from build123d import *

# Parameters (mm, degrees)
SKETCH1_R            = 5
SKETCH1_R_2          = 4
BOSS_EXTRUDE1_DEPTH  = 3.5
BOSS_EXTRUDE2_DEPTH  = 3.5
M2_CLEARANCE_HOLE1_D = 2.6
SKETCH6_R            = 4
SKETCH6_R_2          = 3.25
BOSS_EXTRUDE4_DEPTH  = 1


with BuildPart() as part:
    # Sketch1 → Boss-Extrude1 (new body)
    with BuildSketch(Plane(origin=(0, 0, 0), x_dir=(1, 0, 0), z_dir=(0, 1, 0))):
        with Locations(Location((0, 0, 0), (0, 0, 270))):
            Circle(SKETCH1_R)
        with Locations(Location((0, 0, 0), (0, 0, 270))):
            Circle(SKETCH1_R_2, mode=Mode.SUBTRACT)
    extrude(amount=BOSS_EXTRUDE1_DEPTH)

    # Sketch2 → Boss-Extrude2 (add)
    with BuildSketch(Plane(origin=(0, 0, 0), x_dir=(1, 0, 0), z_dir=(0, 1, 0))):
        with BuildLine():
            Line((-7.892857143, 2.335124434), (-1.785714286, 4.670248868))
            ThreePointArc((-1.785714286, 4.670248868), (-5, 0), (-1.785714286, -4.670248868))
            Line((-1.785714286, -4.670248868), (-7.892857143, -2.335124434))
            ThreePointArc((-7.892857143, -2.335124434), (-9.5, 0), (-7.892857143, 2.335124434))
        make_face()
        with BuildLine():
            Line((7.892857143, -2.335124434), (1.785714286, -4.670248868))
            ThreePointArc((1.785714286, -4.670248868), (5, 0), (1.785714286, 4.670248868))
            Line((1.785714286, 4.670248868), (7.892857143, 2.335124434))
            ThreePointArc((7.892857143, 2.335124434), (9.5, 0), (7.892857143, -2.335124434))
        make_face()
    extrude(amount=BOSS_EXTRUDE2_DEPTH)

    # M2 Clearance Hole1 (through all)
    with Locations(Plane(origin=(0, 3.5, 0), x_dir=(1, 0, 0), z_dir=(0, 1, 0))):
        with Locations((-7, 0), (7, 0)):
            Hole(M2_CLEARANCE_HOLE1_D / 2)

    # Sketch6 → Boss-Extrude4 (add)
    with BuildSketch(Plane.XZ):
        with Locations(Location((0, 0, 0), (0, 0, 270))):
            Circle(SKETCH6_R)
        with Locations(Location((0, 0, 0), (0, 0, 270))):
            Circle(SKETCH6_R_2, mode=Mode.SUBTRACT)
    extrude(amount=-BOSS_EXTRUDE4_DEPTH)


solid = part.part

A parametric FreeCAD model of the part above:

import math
import FreeCAD as App
import Part
import Sketcher
from FreeCAD import Vector

doc = App.newDocument("Part")
body = doc.addObject("PartDesign::Body", "Body")

# Sketch on XZ plane
sketch1 = body.newObject("Sketcher::SketchObject", "Sketch")
sketch1.AttachmentSupport = (doc.getObject("XZ_Plane"), [""])
sketch1.MapMode = "FlatFace"
sketch1.addGeometry([
    Part.Circle(Vector(0, 0, 0), Vector(0, 0, 1), 5),
    Part.Circle(Vector(0, 0, 0), Vector(0, 0, 1), 4),
], False)
sketch1.addConstraint([
    Sketcher.Constraint("Coincident", 0, 3, -1, 1),
    Sketcher.Constraint("Coincident", 1, 3, -1, 1),
    Sketcher.Constraint("Diameter", 0, 10.0),
    Sketcher.Constraint("Diameter", 1, 8.0),
])
pad1 = body.newObject("PartDesign::Pad", "Pad")
pad1.Profile = sketch1
pad1.Length = 3.5
pad1.Reversed = True

# Sketch on XZ plane
sketch2 = body.newObject("Sketcher::SketchObject", "Sketch001")
sketch2.AttachmentSupport = (doc.getObject("XZ_Plane"), [""])
sketch2.MapMode = "FlatFace"
sketch2.addGeometry([
    Part.LineSegment(Vector(-1.785714, -4.670249, 0), Vector(-7.892857, -2.335124, 0)),  # 0
    Part.ArcOfCircle(Part.Circle(Vector(-7, 0, 0), Vector(0, 0, 1), 2.5), math.radians(110.924832), math.radians(249.075168)),  # 1
    Part.LineSegment(Vector(-7.892857, 2.335124, 0), Vector(-1.785714, 4.670249, 0)),  # 2
    Part.ArcOfCircle(Part.Circle(Vector(0, 0, 0), Vector(0, 0, 1), 5), math.radians(110.924832), math.radians(249.075168)),  # 3
    Part.LineSegment(Vector(1.785714, 4.670249, 0), Vector(7.892857, 2.335124, 0)),  # 4
    Part.ArcOfCircle(Part.Circle(Vector(7, 0, 0), Vector(0, 0, 1), 2.5), math.radians(-69.075168), math.radians(69.075168)),  # 5
    Part.LineSegment(Vector(7.892857, -2.335124, 0), Vector(1.785714, -4.670249, 0)),  # 6
    Part.ArcOfCircle(Part.Circle(Vector(0, 0, 0), Vector(0, 0, 1), 5), math.radians(-69.075168), math.radians(69.075168)),  # 7
], False)
sketch2.addConstraint([
    Sketcher.Constraint("Tangent", 0, 2, 1, 2),
    Sketcher.Constraint("Tangent", 1, 1, 2, 1),
    Sketcher.Constraint("Tangent", 2, 2, 3, 1),
    Sketcher.Constraint("Tangent", 3, 2, 0, 1),
    Sketcher.Constraint("Tangent", 4, 2, 5, 2),
    Sketcher.Constraint("Tangent", 5, 1, 6, 1),
    Sketcher.Constraint("Tangent", 6, 2, 7, 1),
    Sketcher.Constraint("Tangent", 7, 2, 4, 1),
    Sketcher.Constraint("Coincident", 3, 3, -1, 1),
    Sketcher.Constraint("Coincident", 7, 3, -1, 1),
    Sketcher.Constraint("Equal", 1, 5),
    Sketcher.Constraint("Equal", 3, 7),
    Sketcher.Constraint("Symmetric", 1, 3, 5, 3, -1, 1),
    Sketcher.Constraint("PointOnObject", 1, 3, -1),
    Sketcher.Constraint("Radius", 3, 5.0),
    Sketcher.Constraint("Radius", 1, 2.5),
    Sketcher.Constraint("DistanceX", 1, 3, -1, 1, 7.0),
])
pad2 = body.newObject("PartDesign::Pad", "Pad001")
pad2.Profile = sketch2
pad2.Length = 3.5
pad2.Reversed = True

# Sketch on XZ plane
sketch3 = body.newObject("Sketcher::SketchObject", "Sketch002")
sketch3.AttachmentSupport = (doc.getObject("XZ_Plane"), [""])
sketch3.MapMode = "FlatFace"
sketch3.AttachmentOffset = App.Placement(Vector(0, 0, -3.5), App.Rotation())
sketch3.addGeometry([
    Part.Circle(Vector(-7, 0, 0), Vector(0, 0, 1), 1.3),
    Part.Circle(Vector(7, 0, 0), Vector(0, 0, 1), 1.3),
], False)
sketch3.addConstraint([
    Sketcher.Constraint("Equal", 0, 1),
    Sketcher.Constraint("Symmetric", 0, 3, 1, 3, -1, 1),
    Sketcher.Constraint("PointOnObject", 0, 3, -1),
    Sketcher.Constraint("Diameter", 0, 2.6),
    Sketcher.Constraint("DistanceX", 0, 3, -1, 1, 7.0),
])
doc.recompute()
hole = body.newObject("PartDesign::Hole", "Hole")
hole.Profile = sketch3
hole.ThreadType = "None"
hole.Diameter = 2.6
hole.DepthType = "ThroughAll"
hole.Reversed = True

# Sketch on XZ plane
sketch4 = body.newObject("Sketcher::SketchObject", "Sketch003")
sketch4.AttachmentSupport = (doc.getObject("XZ_Plane"), [""])
sketch4.MapMode = "FlatFace"
sketch4.addGeometry([
    Part.Circle(Vector(0, 0, 0), Vector(0, 0, 1), 4),
    Part.Circle(Vector(0, 0, 0), Vector(0, 0, 1), 3.25),
], False)
sketch4.addConstraint([
    Sketcher.Constraint("Coincident", 0, 3, -1, 1),
    Sketcher.Constraint("Coincident", 1, 3, -1, 1),
    Sketcher.Constraint("Diameter", 0, 8.0),
    Sketcher.Constraint("Diameter", 1, 6.5),
])
pad3 = body.newObject("PartDesign::Pad", "Pad002")
pad3.Profile = sketch4
pad3.Length = 1
pad3.Reversed = True

doc.recompute()
